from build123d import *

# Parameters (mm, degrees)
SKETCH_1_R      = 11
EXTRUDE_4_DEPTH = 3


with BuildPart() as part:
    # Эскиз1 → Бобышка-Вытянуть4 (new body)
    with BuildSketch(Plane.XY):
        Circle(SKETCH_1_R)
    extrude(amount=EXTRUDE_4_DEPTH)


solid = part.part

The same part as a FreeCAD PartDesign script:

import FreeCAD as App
import Part
import Sketcher
from FreeCAD import Vector

doc = App.newDocument("Part")
body = doc.addObject("PartDesign::Body", "Body")

# Sketch on XY plane
sketch1 = body.newObject("Sketcher::SketchObject", "Sketch")
sketch1.AttachmentSupport = (doc.getObject("XY_Plane"), [""])
sketch1.MapMode = "FlatFace"
sketch1.addGeometry(Part.Circle(Vector(0, 0, 0), Vector(0, 0, 1), 11), False)
sketch1.addConstraint(Sketcher.Constraint("Coincident", 0, 3, -1, 1))
sketch1.addConstraint(Sketcher.Constraint("Diameter", 0, 22.0))
pad1 = body.newObject("PartDesign::Pad", "Pad")
pad1.Profile = sketch1
pad1.Length = 3

doc.recompute()
